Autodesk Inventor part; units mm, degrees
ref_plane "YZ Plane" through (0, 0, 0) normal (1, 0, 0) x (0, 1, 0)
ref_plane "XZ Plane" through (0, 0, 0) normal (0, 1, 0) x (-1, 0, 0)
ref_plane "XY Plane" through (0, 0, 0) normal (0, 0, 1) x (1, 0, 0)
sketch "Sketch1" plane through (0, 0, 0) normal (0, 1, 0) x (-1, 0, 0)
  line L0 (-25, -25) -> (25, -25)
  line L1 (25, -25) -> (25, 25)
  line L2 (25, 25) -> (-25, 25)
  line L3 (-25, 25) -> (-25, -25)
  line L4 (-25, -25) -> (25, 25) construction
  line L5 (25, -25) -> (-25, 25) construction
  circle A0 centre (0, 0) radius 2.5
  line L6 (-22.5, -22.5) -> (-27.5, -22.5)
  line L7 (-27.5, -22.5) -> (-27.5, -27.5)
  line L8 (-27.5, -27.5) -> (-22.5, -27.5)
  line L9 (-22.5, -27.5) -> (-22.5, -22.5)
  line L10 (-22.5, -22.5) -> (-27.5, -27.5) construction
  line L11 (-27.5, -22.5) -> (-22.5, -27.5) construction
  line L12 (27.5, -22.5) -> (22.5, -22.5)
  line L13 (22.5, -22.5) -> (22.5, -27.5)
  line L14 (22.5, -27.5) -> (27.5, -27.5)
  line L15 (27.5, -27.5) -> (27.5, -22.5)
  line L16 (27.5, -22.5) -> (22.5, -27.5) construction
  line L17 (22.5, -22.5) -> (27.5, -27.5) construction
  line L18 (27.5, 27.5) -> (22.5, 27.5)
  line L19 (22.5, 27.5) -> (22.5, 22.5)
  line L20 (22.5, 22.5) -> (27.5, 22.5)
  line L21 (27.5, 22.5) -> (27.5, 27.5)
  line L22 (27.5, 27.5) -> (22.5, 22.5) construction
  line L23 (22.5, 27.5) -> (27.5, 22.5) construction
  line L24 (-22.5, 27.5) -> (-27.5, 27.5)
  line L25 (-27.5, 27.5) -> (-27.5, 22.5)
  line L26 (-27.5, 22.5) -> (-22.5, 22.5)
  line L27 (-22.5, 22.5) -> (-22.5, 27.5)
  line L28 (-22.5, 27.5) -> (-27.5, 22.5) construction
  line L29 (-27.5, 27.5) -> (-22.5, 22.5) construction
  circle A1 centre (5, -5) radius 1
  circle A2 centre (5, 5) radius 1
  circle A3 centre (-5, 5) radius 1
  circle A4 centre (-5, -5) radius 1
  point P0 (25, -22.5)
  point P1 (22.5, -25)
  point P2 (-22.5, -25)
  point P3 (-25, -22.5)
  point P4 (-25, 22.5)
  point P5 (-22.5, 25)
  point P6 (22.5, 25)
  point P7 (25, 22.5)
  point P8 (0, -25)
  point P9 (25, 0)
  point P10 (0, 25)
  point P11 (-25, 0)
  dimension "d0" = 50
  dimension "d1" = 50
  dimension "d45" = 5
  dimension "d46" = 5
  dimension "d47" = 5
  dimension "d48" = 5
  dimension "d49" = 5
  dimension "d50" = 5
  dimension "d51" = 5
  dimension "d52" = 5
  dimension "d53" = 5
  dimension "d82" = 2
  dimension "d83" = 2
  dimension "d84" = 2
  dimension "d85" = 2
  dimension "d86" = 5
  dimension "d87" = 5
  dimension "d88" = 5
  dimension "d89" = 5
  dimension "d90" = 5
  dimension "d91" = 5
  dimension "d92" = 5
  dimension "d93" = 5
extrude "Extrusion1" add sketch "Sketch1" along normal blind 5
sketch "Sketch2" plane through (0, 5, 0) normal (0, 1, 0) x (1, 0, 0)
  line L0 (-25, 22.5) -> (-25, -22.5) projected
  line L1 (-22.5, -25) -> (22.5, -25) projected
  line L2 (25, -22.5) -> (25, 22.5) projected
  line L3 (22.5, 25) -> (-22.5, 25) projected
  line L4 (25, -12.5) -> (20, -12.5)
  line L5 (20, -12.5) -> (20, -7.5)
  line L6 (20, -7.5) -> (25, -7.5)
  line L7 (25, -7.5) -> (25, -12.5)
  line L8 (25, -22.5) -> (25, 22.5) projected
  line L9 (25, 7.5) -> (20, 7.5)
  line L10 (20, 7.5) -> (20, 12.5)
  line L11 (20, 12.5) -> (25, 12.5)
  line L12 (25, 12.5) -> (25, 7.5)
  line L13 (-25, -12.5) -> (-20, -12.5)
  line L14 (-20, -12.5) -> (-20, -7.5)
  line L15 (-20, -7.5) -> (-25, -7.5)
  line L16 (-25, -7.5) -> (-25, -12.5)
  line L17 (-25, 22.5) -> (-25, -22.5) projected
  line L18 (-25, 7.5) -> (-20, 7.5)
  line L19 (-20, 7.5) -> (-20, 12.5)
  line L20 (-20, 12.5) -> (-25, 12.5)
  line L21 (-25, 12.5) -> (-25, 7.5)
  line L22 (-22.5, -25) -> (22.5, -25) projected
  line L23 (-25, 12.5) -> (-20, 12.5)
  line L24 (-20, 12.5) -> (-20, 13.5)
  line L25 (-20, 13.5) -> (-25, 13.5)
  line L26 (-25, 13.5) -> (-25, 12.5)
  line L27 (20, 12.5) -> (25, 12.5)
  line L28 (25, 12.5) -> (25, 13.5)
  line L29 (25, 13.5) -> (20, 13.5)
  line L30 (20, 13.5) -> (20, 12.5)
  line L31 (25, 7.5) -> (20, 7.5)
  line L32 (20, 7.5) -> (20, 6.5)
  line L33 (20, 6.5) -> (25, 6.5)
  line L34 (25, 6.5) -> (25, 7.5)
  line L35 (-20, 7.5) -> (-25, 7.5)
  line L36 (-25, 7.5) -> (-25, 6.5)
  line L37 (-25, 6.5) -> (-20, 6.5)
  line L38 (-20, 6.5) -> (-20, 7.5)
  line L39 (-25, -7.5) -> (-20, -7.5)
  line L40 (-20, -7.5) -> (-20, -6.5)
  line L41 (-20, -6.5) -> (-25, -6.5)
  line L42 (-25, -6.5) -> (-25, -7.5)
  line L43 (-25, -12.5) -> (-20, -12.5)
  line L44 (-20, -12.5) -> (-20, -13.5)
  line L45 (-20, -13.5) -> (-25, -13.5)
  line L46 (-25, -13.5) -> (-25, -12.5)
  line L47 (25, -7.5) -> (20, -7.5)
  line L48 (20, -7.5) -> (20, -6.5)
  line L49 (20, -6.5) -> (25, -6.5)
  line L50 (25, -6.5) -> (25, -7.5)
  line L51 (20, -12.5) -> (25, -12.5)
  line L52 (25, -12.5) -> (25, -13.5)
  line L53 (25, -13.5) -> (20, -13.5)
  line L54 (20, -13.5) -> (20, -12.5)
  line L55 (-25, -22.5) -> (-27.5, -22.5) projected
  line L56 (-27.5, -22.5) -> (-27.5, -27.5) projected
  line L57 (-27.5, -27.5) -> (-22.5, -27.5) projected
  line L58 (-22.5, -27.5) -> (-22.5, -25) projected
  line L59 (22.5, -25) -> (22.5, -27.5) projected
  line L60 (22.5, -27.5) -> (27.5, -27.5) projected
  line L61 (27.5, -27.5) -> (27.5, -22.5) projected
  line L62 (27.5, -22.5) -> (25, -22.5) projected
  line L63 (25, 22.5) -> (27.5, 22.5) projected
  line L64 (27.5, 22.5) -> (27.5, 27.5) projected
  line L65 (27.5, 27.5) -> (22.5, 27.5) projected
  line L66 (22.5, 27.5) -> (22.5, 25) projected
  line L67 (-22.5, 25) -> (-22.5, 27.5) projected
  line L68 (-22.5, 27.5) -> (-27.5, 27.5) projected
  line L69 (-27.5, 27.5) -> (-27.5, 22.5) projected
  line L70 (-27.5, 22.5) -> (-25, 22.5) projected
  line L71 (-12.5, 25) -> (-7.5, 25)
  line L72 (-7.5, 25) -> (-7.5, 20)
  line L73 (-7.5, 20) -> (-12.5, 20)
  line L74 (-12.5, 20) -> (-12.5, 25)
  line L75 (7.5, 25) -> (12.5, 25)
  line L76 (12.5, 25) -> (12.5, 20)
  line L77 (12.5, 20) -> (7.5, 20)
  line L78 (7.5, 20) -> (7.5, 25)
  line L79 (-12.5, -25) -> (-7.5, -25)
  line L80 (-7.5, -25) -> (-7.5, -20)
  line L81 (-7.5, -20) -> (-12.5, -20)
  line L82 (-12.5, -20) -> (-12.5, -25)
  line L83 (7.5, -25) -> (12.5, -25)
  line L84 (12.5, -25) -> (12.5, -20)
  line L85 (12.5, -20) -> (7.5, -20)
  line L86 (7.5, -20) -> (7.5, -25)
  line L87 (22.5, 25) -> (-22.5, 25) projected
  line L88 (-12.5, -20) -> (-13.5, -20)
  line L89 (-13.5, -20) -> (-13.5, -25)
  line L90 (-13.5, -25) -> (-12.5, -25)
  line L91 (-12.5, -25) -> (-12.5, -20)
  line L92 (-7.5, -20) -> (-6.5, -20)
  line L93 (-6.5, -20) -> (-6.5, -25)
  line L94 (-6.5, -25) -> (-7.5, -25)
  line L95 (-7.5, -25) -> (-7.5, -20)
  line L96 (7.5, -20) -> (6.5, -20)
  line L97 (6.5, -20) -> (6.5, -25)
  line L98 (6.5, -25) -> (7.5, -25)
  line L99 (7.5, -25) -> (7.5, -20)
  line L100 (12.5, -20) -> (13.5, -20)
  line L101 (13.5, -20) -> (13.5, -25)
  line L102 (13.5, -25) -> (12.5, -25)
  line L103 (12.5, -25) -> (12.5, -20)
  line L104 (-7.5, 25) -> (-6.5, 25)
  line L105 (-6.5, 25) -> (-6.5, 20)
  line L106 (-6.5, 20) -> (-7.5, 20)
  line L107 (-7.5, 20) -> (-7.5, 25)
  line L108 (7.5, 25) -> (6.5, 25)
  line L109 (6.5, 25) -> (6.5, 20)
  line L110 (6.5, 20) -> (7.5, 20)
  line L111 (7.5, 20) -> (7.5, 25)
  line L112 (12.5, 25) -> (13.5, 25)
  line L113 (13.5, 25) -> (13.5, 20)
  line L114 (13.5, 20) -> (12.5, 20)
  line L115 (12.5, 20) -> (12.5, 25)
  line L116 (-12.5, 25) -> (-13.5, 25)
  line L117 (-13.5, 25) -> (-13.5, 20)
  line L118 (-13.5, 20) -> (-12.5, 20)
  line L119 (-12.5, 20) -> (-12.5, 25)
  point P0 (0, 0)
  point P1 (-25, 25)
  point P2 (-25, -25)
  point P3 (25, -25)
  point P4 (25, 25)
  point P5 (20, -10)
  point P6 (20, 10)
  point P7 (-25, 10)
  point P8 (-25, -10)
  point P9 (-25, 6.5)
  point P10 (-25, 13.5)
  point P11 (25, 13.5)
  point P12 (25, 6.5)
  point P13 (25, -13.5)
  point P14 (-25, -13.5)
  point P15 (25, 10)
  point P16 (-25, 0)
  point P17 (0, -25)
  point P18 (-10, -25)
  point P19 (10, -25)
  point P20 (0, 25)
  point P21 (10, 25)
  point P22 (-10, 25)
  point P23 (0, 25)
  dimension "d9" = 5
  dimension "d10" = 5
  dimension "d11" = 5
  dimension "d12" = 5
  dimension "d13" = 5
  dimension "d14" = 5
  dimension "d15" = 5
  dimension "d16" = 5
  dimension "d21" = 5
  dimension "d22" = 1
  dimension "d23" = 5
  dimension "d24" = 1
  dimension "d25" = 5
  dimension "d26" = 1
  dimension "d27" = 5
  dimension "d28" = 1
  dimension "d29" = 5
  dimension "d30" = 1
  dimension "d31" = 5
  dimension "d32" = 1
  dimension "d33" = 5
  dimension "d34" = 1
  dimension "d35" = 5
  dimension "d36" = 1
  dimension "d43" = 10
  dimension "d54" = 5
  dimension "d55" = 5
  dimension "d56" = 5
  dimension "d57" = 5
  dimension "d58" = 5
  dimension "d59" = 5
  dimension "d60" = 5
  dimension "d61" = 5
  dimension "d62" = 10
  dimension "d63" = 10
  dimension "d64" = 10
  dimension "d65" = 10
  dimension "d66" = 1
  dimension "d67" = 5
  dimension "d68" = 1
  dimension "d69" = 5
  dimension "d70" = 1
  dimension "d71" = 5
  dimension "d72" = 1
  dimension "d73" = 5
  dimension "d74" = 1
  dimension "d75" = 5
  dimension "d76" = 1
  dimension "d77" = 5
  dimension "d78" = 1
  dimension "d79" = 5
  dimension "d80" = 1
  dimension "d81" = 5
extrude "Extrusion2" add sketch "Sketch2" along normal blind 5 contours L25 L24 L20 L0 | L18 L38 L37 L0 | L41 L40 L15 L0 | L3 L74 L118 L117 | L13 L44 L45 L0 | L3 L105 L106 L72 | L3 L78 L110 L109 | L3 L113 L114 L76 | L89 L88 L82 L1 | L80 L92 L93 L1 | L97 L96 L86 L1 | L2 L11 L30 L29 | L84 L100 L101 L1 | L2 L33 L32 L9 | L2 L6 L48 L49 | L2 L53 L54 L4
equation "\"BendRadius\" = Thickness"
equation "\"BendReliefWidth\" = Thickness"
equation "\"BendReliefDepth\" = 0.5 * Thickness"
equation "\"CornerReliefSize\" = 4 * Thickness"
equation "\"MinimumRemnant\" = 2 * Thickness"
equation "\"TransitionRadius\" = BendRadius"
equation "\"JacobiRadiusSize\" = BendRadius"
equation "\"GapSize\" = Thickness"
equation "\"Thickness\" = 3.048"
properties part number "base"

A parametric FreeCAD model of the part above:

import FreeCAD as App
import Part
import Sketcher

doc = App.newDocument("Part")
body = doc.addObject("PartDesign::Body", "Body")

# Sketch on XZ plane
sketch1 = body.newObject("Sketcher::SketchObject", "Sketch")
sketch1.AttachmentSupport = (doc.getObject("XZ_Plane"), [""])
sketch1.MapMode = "FlatFace"
sketch1.addGeometry([
    Part.LineSegment(App.Vector(25, -22.5, 0), App.Vector(27.5, -22.5, 0)),  # 0
    Part.LineSegment(App.Vector(27.5, -22.5, 0), App.Vector(27.5, -27.5, 0)),  # 1
    Part.LineSegment(App.Vector(27.5, -27.5, 0), App.Vector(22.5, -27.5, 0)),  # 2
    Part.LineSegment(App.Vector(22.5, -27.5, 0), App.Vector(22.5, -25, 0)),  # 3
    Part.LineSegment(App.Vector(22.5, -25, 0), App.Vector(-22.5, -25, 0)),  # 4
    Part.LineSegment(App.Vector(-22.5, -25, 0), App.Vector(-22.5, -27.5, 0)),  # 5
    Part.LineSegment(App.Vector(-22.5, -27.5, 0), App.Vector(-27.5, -27.5, 0)),  # 6
    Part.LineSegment(App.Vector(-27.5, -27.5, 0), App.Vector(-27.5, -22.5, 0)),  # 7
    Part.LineSegment(App.Vector(-27.5, -22.5, 0), App.Vector(-25, -22.5, 0)),  # 8
    Part.LineSegment(App.Vector(-25, -22.5, 0), App.Vector(-25, 22.5, 0)),  # 9
    Part.LineSegment(App.Vector(-25, 22.5, 0), App.Vector(-27.5, 22.5, 0)),  # 10
    Part.LineSegment(App.Vector(-27.5, 22.5, 0), App.Vector(-27.5, 27.5, 0)),  # 11
    Part.LineSegment(App.Vector(-27.5, 27.5, 0), App.Vector(-22.5, 27.5, 0)),  # 12
    Part.LineSegment(App.Vector(-22.5, 27.5, 0), App.Vector(-22.5, 25, 0)),  # 13
    Part.LineSegment(App.Vector(-22.5, 25, 0), App.Vector(22.5, 25, 0)),  # 14
    Part.LineSegment(App.Vector(22.5, 25, 0), App.Vector(22.5, 27.5, 0)),  # 15
    Part.LineSegment(App.Vector(22.5, 27.5, 0), App.Vector(27.5, 27.5, 0)),  # 16
    Part.LineSegment(App.Vector(27.5, 27.5, 0), App.Vector(27.5, 22.5, 0)),  # 17
    Part.LineSegment(App.Vector(27.5, 22.5, 0), App.Vector(25, 22.5, 0)),  # 18
    Part.LineSegment(App.Vector(25, 22.5, 0), App.Vector(25, -22.5, 0)),  # 19
    Part.Circle(App.Vector(0, 0, 0), App.Vector(0, 0, 1), 2.5),  # 20
    Part.Circle(App.Vector(-5, 5, 0), App.Vector(0, 0, 1), 1),  # 21
    Part.Circle(App.Vector(5, -5, 0), App.Vector(0, 0, 1), 1),  # 22
    Part.Circle(App.Vector(-5, -5, 0), App.Vector(0, 0, 1), 1),  # 23
    Part.Circle(App.Vector(5, 5, 0), App.Vector(0, 0, 1), 1),  # 24
], False)
sketch1.addConstraint([
    Sketcher.Constraint("Coincident", 0, 2, 1, 1),
    Sketcher.Constraint("Coincident", 1, 2, 2, 1),
    Sketcher.Constraint("Coincident", 2, 2, 3, 1),
    Sketcher.Constraint("Coincident", 3, 2, 4, 1),
    Sketcher.Constraint("Coincident", 4, 2, 5, 1),
    Sketcher.Constraint("Coincident", 5, 2, 6, 1),
    Sketcher.Constraint("Coincident", 6, 2, 7, 1),
    Sketcher.Constraint("Coincident", 7, 2, 8, 1),
    Sketcher.Constraint("Coincident", 8, 2, 9, 1),
    Sketcher.Constraint("Coincident", 9, 2, 10, 1),
    Sketcher.Constraint("Coincident", 10, 2, 11, 1),
    Sketcher.Constraint("Coincident", 11, 2, 12, 1),
    Sketcher.Constraint("Coincident", 12, 2, 13, 1),
    Sketcher.Constraint("Coincident", 13, 2, 14, 1),
    Sketcher.Constraint("Coincident", 14, 2, 15, 1),
    Sketcher.Constraint("Coincident", 15, 2, 16, 1),
    Sketcher.Constraint("Coincident", 16, 2, 17, 1),
    Sketcher.Constraint("Coincident", 17, 2, 18, 1),
    Sketcher.Constraint("Coincident", 18, 2, 19, 1),
    Sketcher.Constraint("Coincident", 19, 2, 0, 1),
    Sketcher.Constraint("Horizontal", 0),
    Sketcher.Constraint("Vertical", 1),
    Sketcher.Constraint("Horizontal", 2),
    Sketcher.Constraint("Vertical", 3),
    Sketcher.Constraint("Horizontal", 4),
    Sketcher.Constraint("Vertical", 5),
    Sketcher.Constraint("Horizontal", 6),
    Sketcher.Constraint("Vertical", 7),
    Sketcher.Constraint("Horizontal", 8),
    Sketcher.Constraint("Vertical", 9),
    Sketcher.Constraint("Horizontal", 10),
    Sketcher.Constraint("Vertical", 11),
    Sketcher.Constraint("Horizontal", 12),
    Sketcher.Constraint("Vertical", 13),
    Sketcher.Constraint("Horizontal", 14),
    Sketcher.Constraint("Vertical", 15),
    Sketcher.Constraint("Horizontal", 16),
    Sketcher.Constraint("Vertical", 17),
    Sketcher.Constraint("Horizontal", 18),
    Sketcher.Constraint("Vertical", 19),
    Sketcher.Constraint("Coincident", 20, 3, -1, 1),
    Sketcher.Constraint("Equal", 21, 22),
    Sketcher.Constraint("Equal", 22, 23),
    Sketcher.Constraint("Equal", 23, 24),
    Sketcher.Constraint("Symmetric", 21, 3, 22, 3, -1, 1),
    Sketcher.Constraint("Symmetric", 23, 3, 24, 3, -1, 1),
    Sketcher.Constraint("Symmetric", 0, 2, 10, 2, -1, 1),
    Sketcher.Constraint("Symmetric", 2, 2, 12, 2, -1, 1),
    Sketcher.Constraint("Symmetric", 4, 2, 14, 2, -1, 1),
    Sketcher.Constraint("Symmetric", 6, 2, 16, 2, -1, 1),
    Sketcher.Constraint("Symmetric", 8, 2, 18, 2, -1, 1),
    Sketcher.Constraint("Symmetric", 22, 3, 23, 3, -2),
    Sketcher.Constraint("Symmetric", 2, 2, 5, 2, -2),
    Sketcher.Constraint("Symmetric", 0, 2, 7, 2, -2),
    Sketcher.Constraint("Equal", 16, 1),
    Sketcher.Constraint("Equal", 18, 3),
    Sketcher.Constraint("Equal", 14, 9),
    Sketcher.Constraint("Diameter", 20, 5.0),
    Sketcher.Constraint("Diameter", 21, 2.0),
    Sketcher.Constraint("DistanceX", 2, 2, 2, 1, 5.0),
    Sketcher.Constraint("DistanceX", 21, 3, -1, 1, 5.0),
    Sketcher.Constraint("DistanceY", -1, 1, 21, 3, 5.0),
    Sketcher.Constraint("DistanceX", 4, 2, 4, 1, 45.0),
    Sketcher.Constraint("DistanceX", 0, 1, 0, 2, 2.5),
])
pad1 = body.newObject("PartDesign::Pad", "Pad")
pad1.Profile = sketch1
pad1.Length = 5
pad1.Reversed = True

# Sketch on XZ plane
sketch2 = body.newObject("Sketcher::SketchObject", "Sketch001")
sketch2.AttachmentSupport = (doc.getObject("XZ_Plane"), [""])
sketch2.MapMode = "FlatFace"
sketch2.AttachmentOffset = App.Placement(App.Vector(0, 0, -5), App.Rotation())
sketch2.addGeometry([
    Part.LineSegment(App.Vector(-20, -13.5, 0), App.Vector(-25, -13.5, 0)),  # 0
    Part.LineSegment(App.Vector(-25, -13.5, 0), App.Vector(-25, -12.5, 0)),  # 1
    Part.LineSegment(App.Vector(-25, -12.5, 0), App.Vector(-20, -12.5, 0)),  # 2
    Part.LineSegment(App.Vector(-20, -12.5, 0), App.Vector(-20, -13.5, 0)),  # 3
    Part.LineSegment(App.Vector(-20, -7.5, 0), App.Vector(-25, -7.5, 0)),  # 4
    Part.LineSegment(App.Vector(-25, -7.5, 0), App.Vector(-25, -6.5, 0)),  # 5
    Part.LineSegment(App.Vector(-25, -6.5, 0), App.Vector(-20, -6.5, 0)),  # 6
    Part.LineSegment(App.Vector(-20, -6.5, 0), App.Vector(-20, -7.5, 0)),  # 7
    Part.LineSegment(App.Vector(-20, 6.5, 0), App.Vector(-25, 6.5, 0)),  # 8
    Part.LineSegment(App.Vector(-25, 6.5, 0), App.Vector(-25, 7.5, 0)),  # 9
    Part.LineSegment(App.Vector(-25, 7.5, 0), App.Vector(-20, 7.5, 0)),  # 10
    Part.LineSegment(App.Vector(-20, 7.5, 0), App.Vector(-20, 6.5, 0)),  # 11
    Part.LineSegment(App.Vector(-12.5, -25, 0), App.Vector(-13.5, -25, 0)),  # 12
    Part.LineSegment(App.Vector(-13.5, -25, 0), App.Vector(-13.5, -20, 0)),  # 13
    Part.LineSegment(App.Vector(-13.5, -20, 0), App.Vector(-12.5, -20, 0)),  # 14
    Part.LineSegment(App.Vector(-12.5, -20, 0), App.Vector(-12.5, -25, 0)),  # 15
    Part.LineSegment(App.Vector(-20, 12.5, 0), App.Vector(-25, 12.5, 0)),  # 16
    Part.LineSegment(App.Vector(-25, 12.5, 0), App.Vector(-25, 13.5, 0)),  # 17
    Part.LineSegment(App.Vector(-25, 13.5, 0), App.Vector(-20, 13.5, 0)),  # 18
    Part.LineSegment(App.Vector(-20, 13.5, 0), App.Vector(-20, 12.5, 0)),  # 19
    Part.LineSegment(App.Vector(-6.5, -25, 0), App.Vector(-7.5, -25, 0)),  # 20
    Part.LineSegment(App.Vector(-7.5, -25, 0), App.Vector(-7.5, -20, 0)),  # 21
    Part.LineSegment(App.Vector(-7.5, -20, 0), App.Vector(-6.5, -20, 0)),  # 22
    Part.LineSegment(App.Vector(-6.5, -20, 0), App.Vector(-6.5, -25, 0)),  # 23
    Part.LineSegment(App.Vector(7.5, -25, 0), App.Vector(6.5, -25, 0)),  # 24
    Part.LineSegment(App.Vector(6.5, -25, 0), App.Vector(6.5, -20, 0)),  # 25
    Part.LineSegment(App.Vector(6.5, -20, 0), App.Vector(7.5, -20, 0)),  # 26
    Part.LineSegment(App.Vector(7.5, -20, 0), App.Vector(7.5, -25, 0)),  # 27
    Part.LineSegment(App.Vector(13.5, -25, 0), App.Vector(12.5, -25, 0)),  # 28
    Part.LineSegment(App.Vector(12.5, -25, 0), App.Vector(12.5, -20, 0)),  # 29
    Part.LineSegment(App.Vector(12.5, -20, 0), App.Vector(13.5, -20, 0)),  # 30
    Part.LineSegment(App.Vector(13.5, -20, 0), App.Vector(13.5, -25, 0)),  # 31
    Part.LineSegment(App.Vector(-13.5, 20, 0), App.Vector(-13.5, 25, 0)),  # 32
    Part.LineSegment(App.Vector(-13.5, 25, 0), App.Vector(-12.5, 25, 0)),  # 33
    Part.LineSegment(App.Vector(-12.5, 25, 0), App.Vector(-12.5, 20, 0)),  # 34
    Part.LineSegment(App.Vector(-12.5, 20, 0), App.Vector(-13.5, 20, 0)),  # 35
    Part.LineSegment(App.Vector(-7.5, 20, 0), App.Vector(-7.5, 25, 0)),  # 36
    Part.LineSegment(App.Vector(-7.5, 25, 0), App.Vector(-6.5, 25, 0)),  # 37
    Part.LineSegment(App.Vector(-6.5, 25, 0), App.Vector(-6.5, 20, 0)),  # 38
    Part.LineSegment(App.Vector(-6.5, 20, 0), App.Vector(-7.5, 20, 0)),  # 39
    Part.LineSegment(App.Vector(6.5, 20, 0), App.Vector(6.5, 25, 0)),  # 40
    Part.LineSegment(App.Vector(6.5, 25, 0), App.Vector(7.5, 25, 0)),  # 41
    Part.LineSegment(App.Vector(7.5, 25, 0), App.Vector(7.5, 20, 0)),  # 42
    Part.LineSegment(App.Vector(7.5, 20, 0), App.Vector(6.5, 20, 0)),  # 43
    Part.LineSegment(App.Vector(25, -12.5, 0), App.Vector(25, -13.5, 0)),  # 44
    Part.LineSegment(App.Vector(25, -13.5, 0), App.Vector(20, -13.5, 0)),  # 45
    Part.LineSegment(App.Vector(20, -13.5, 0), App.Vector(20, -12.5, 0)),  # 46
    Part.LineSegment(App.Vector(20, -12.5, 0), App.Vector(25, -12.5, 0)),  # 47
    Part.LineSegment(App.Vector(12.5, 20, 0), App.Vector(12.5, 25, 0)),  # 48
    Part.LineSegment(App.Vector(12.5, 25, 0), App.Vector(13.5, 25, 0)),  # 49
    Part.LineSegment(App.Vector(13.5, 25, 0), App.Vector(13.5, 20, 0)),  # 50
    Part.LineSegment(App.Vector(13.5, 20, 0), App.Vector(12.5, 20, 0)),  # 51
    Part.LineSegment(App.Vector(25, -6.5, 0), App.Vector(25, -7.5, 0)),  # 52
    Part.LineSegment(App.Vector(25, -7.5, 0), App.Vector(20, -7.5, 0)),  # 53
    Part.LineSegment(App.Vector(20, -7.5, 0), App.Vector(20, -6.5, 0)),  # 54
    Part.LineSegment(App.Vector(20, -6.5, 0), App.Vector(25, -6.5, 0)),  # 55
    Part.LineSegment(App.Vector(25, 7.5, 0), App.Vector(25, 6.5, 0)),  # 56
    Part.LineSegment(App.Vector(25, 6.5, 0), App.Vector(20, 6.5, 0)),  # 57
    Part.LineSegment(App.Vector(20, 6.5, 0), App.Vector(20, 7.5, 0)),  # 58
    Part.LineSegment(App.Vector(20, 7.5, 0), App.Vector(25, 7.5, 0)),  # 59
    Part.LineSegment(App.Vector(25, 13.5, 0), App.Vector(25, 12.5, 0)),  # 60
    Part.LineSegment(App.Vector(25, 12.5, 0), App.Vector(20, 12.5, 0)),  # 61
    Part.LineSegment(App.Vector(20, 12.5, 0), App.Vector(20, 13.5, 0)),  # 62
    Part.LineSegment(App.Vector(20, 13.5, 0), App.Vector(25, 13.5, 0)),  # 63
], False)
sketch2.addConstraint([
    Sketcher.Constraint("Coincident", 0, 2, 1, 1),
    Sketcher.Constraint("Coincident", 1, 2, 2, 1),
    Sketcher.Constraint("Coincident", 2, 2, 3, 1),
    Sketcher.Constraint("Coincident", 3, 2, 0, 1),
    Sketcher.Constraint("Coincident", 4, 2, 5, 1),
    Sketcher.Constraint("Coincident", 5, 2, 6, 1),
    Sketcher.Constraint("Coincident", 6, 2, 7, 1),
    Sketcher.Constraint("Coincident", 7, 2, 4, 1),
    Sketcher.Constraint("Coincident", 8, 2, 9, 1),
    Sketcher.Constraint("Coincident", 9, 2, 10, 1),
    Sketcher.Constraint("Coincident", 10, 2, 11, 1),
    Sketcher.Constraint("Coincident", 11, 2, 8, 1),
    Sketcher.Constraint("Coincident", 12, 2, 13, 1),
    Sketcher.Constraint("Coincident", 13, 2, 14, 1),
    Sketcher.Constraint("Coincident", 14, 2, 15, 1),
    Sketcher.Constraint("Coincident", 15, 2, 12, 1),
    Sketcher.Constraint("Coincident", 16, 2, 17, 1),
    Sketcher.Constraint("Coincident", 17, 2, 18, 1),
    Sketcher.Constraint("Coincident", 18, 2, 19, 1),
    Sketcher.Constraint("Coincident", 19, 2, 16, 1),
    Sketcher.Constraint("Coincident", 20, 2, 21, 1),
    Sketcher.Constraint("Coincident", 21, 2, 22, 1),
    Sketcher.Constraint("Coincident", 22, 2, 23, 1),
    Sketcher.Constraint("Coincident", 23, 2, 20, 1),
    Sketcher.Constraint("Coincident", 24, 2, 25, 1),
    Sketcher.Constraint("Coincident", 25, 2, 26, 1),
    Sketcher.Constraint("Coincident", 26, 2, 27, 1),
    Sketcher.Constraint("Coincident", 27, 2, 24, 1),
    Sketcher.Constraint("Coincident", 28, 2, 29, 1),
    Sketcher.Constraint("Coincident", 29, 2, 30, 1),
    Sketcher.Constraint("Coincident", 30, 2, 31, 1),
    Sketcher.Constraint("Coincident", 31, 2, 28, 1),
    Sketcher.Constraint("Coincident", 32, 2, 33, 1),
    Sketcher.Constraint("Coincident", 33, 2, 34, 1),
    Sketcher.Constraint("Coincident", 34, 2, 35, 1),
    Sketcher.Constraint("Coincident", 35, 2, 32, 1),
    Sketcher.Constraint("Coincident", 36, 2, 37, 1),
    Sketcher.Constraint("Coincident", 37, 2, 38, 1),
    Sketcher.Constraint("Coincident", 38, 2, 39, 1),
    Sketcher.Constraint("Coincident", 39, 2, 36, 1),
    Sketcher.Constraint("Coincident", 40, 2, 41, 1),
    Sketcher.Constraint("Coincident", 41, 2, 42, 1),
    Sketcher.Constraint("Coincident", 42, 2, 43, 1),
    Sketcher.Constraint("Coincident", 43, 2, 40, 1),
    Sketcher.Constraint("Coincident", 44, 2, 45, 1),
    Sketcher.Constraint("Coincident", 45, 2, 46, 1),
    Sketcher.Constraint("Coincident", 46, 2, 47, 1),
    Sketcher.Constraint("Coincident", 47, 2, 44, 1),
    Sketcher.Constraint("Coincident", 48, 2, 49, 1),
    Sketcher.Constraint("Coincident", 49, 2, 50, 1),
    Sketcher.Constraint("Coincident", 50, 2, 51, 1),
    Sketcher.Constraint("Coincident", 51, 2, 48, 1),
    Sketcher.Constraint("Coincident", 52, 2, 53, 1),
    Sketcher.Constraint("Coincident", 53, 2, 54, 1),
    Sketcher.Constraint("Coincident", 54, 2, 55, 1),
    Sketcher.Constraint("Coincident", 55, 2, 52, 1),
    Sketcher.Constraint("Coincident", 56, 2, 57, 1),
    Sketcher.Constraint("Coincident", 57, 2, 58, 1),
    Sketcher.Constraint("Coincident", 58, 2, 59, 1),
    Sketcher.Constraint("Coincident", 59, 2, 56, 1),
    Sketcher.Constraint("Coincident", 60, 2, 61, 1),
    Sketcher.Constraint("Coincident", 61, 2, 62, 1),
    Sketcher.Constraint("Coincident", 62, 2, 63, 1),
    Sketcher.Constraint("Coincident", 63, 2, 60, 1),
    Sketcher.Constraint("Horizontal", 0),
    Sketcher.Constraint("Vertical", 1),
    Sketcher.Constraint("Horizontal", 2),
    Sketcher.Constraint("Vertical", 3),
    Sketcher.Constraint("Horizontal", 4),
    Sketcher.Constraint("Vertical", 5),
    Sketcher.Constraint("Horizontal", 6),
    Sketcher.Constraint("Vertical", 7),
    Sketcher.Constraint("Horizontal", 8),
    Sketcher.Constraint("Vertical", 9),
    Sketcher.Constraint("Horizontal", 10),
    Sketcher.Constraint("Vertical", 11),
    Sketcher.Constraint("Horizontal", 12),
    Sketcher.Constraint("Vertical", 13),
    Sketcher.Constraint("Horizontal", 14),
    Sketcher.Constraint("Vertical", 15),
    Sketcher.Constraint("Horizontal", 16),
    Sketcher.Constraint("Vertical", 17),
    Sketcher.Constraint("Horizontal", 18),
    Sketcher.Constraint("Vertical", 19),
    Sketcher.Constraint("Horizontal", 20),
    Sketcher.Constraint("Vertical", 21),
    Sketcher.Constraint("Horizontal", 22),
    Sketcher.Constraint("Vertical", 23),
    Sketcher.Constraint("Horizontal", 24),
    Sketcher.Constraint("Vertical", 25),
    Sketcher.Constraint("Horizontal", 26),
    Sketcher.Constraint("Vertical", 27),
    Sketcher.Constraint("Horizontal", 28),
    Sketcher.Constraint("Vertical", 29),
    Sketcher.Constraint("Horizontal", 30),
    Sketcher.Constraint("Vertical", 31),
    Sketcher.Constraint("Vertical", 32),
    Sketcher.Constraint("Horizontal", 33),
    Sketcher.Constraint("Vertical", 34),
    Sketcher.Constraint("Horizontal", 35),
    Sketcher.Constraint("Vertical", 36),
    Sketcher.Constraint("Horizontal", 37),
    Sketcher.Constraint("Vertical", 38),
    Sketcher.Constraint("Horizontal", 39),
    Sketcher.Constraint("Vertical", 40),
    Sketcher.Constraint("Horizontal", 41),
    Sketcher.Constraint("Vertical", 42),
    Sketcher.Constraint("Horizontal", 43),
    Sketcher.Constraint("Vertical", 44),
    Sketcher.Constraint("Horizontal", 45),
    Sketcher.Constraint("Vertical", 46),
    Sketcher.Constraint("Horizontal", 47),
    Sketcher.Constraint("Vertical", 48),
    Sketcher.Constraint("Horizontal", 49),
    Sketcher.Constraint("Vertical", 50),
    Sketcher.Constraint("Horizontal", 51),
    Sketcher.Constraint("Vertical", 52),
    Sketcher.Constraint("Horizontal", 53),
    Sketcher.Constraint("Vertical", 54),
    Sketcher.Constraint("Horizontal", 55),
    Sketcher.Constraint("Vertical", 56),
    Sketcher.Constraint("Horizontal", 57),
    Sketcher.Constraint("Vertical", 58),
    Sketcher.Constraint("Horizontal", 59),
    Sketcher.Constraint("Vertical", 60),
    Sketcher.Constraint("Horizontal", 61),
    Sketcher.Constraint("Vertical", 62),
    Sketcher.Constraint("Horizontal", 63),
    Sketcher.Constraint("Symmetric", 31, 2, 32, 2, -1, 1),
    Sketcher.Constraint("Symmetric", 29, 2, 34, 2, -1, 1),
    Sketcher.Constraint("Symmetric", 27, 2, 36, 2, -1, 1),
    Sketcher.Constraint("Symmetric", 25, 2, 38, 2, -1, 1),
    Sketcher.Constraint("Symmetric", 23, 2, 40, 2, -1, 1),
    Sketcher.Constraint("Symmetric", 21, 2, 42, 2, -1, 1),
    Sketcher.Constraint("Symmetric", 17, 2, 44, 2, -1, 1),
    Sketcher.Constraint("Symmetric", 19, 2, 46, 2, -1, 1),
    Sketcher.Constraint("Symmetric", 15, 2, 48, 2, -1, 1),
    Sketcher.Constraint("Symmetric", 13, 2, 50, 2, -1, 1),
    Sketcher.Constraint("Symmetric", 9, 2, 52, 2, -1, 1),
    Sketcher.Constraint("Symmetric", 11, 2, 54, 2, -1, 1),
    Sketcher.Constraint("Symmetric", 5, 2, 56, 2, -1, 1),
    Sketcher.Constraint("Symmetric", 7, 2, 58, 2, -1, 1),
    Sketcher.Constraint("Symmetric", 1, 2, 60, 2, -1, 1),
    Sketcher.Constraint("Symmetric", 3, 2, 62, 2, -1, 1),
    Sketcher.Constraint("Symmetric", 23, 2, 24, 2, -2),
    Sketcher.Constraint("Symmetric", 21, 2, 26, 2, -2),
    Sketcher.Constraint("Symmetric", 15, 2, 28, 2, -2),
    Sketcher.Constraint("Symmetric", 13, 2, 30, 2, -2),
    Sketcher.Constraint("Symmetric", 0, 2, 44, 2, -2),
    Sketcher.Constraint("Symmetric", 2, 2, 46, 2, -2),
    Sketcher.Constraint("Symmetric", 4, 2, 52, 2, -2),
    Sketcher.Constraint("Symmetric", 6, 2, 54, 2, -2),
    Sketcher.Constraint("Horizontal", 15, 2, 20, 2),
    Sketcher.Constraint("Horizontal", 14, 2, 21, 2),
    Sketcher.Constraint("Vertical", 1, 2, 4, 2),
    Sketcher.Constraint("Vertical", 3, 2, 6, 2),
    Sketcher.Constraint("Equal", 14, 20),
    Sketcher.Constraint("Equal", 51, 1),
    Sketcher.Constraint("Equal", 3, 5),
    Sketcher.Constraint("Equal", 63, 13),
    Sketcher.Constraint("DistanceX", 0, 2, 0, 1, 5.0),
    Sketcher.Constraint("DistanceX", 12, 2, 12, 1, 1.0),
    Sketcher.Constraint("DistanceX", 0, 2, -1, 1, 25.0),
    Sketcher.Constraint("DistanceY", 12, 2, -1, 1, 25.0),
    Sketcher.Constraint("DistanceY", 0, 2, -1, 1, 13.5),
    Sketcher.Constraint("DistanceY", 4, 2, -1, 1, 7.5),
    Sketcher.Constraint("DistanceX", 12, 2, -1, 1, 13.5),
    Sketcher.Constraint("DistanceX", 20, 2, -1, 1, 7.5),
])
pad2 = body.newObject("PartDesign::Pad", "Pad001")
pad2.Profile = sketch2
pad2.Length = 5
pad2.Reversed = True

doc.recompute()
